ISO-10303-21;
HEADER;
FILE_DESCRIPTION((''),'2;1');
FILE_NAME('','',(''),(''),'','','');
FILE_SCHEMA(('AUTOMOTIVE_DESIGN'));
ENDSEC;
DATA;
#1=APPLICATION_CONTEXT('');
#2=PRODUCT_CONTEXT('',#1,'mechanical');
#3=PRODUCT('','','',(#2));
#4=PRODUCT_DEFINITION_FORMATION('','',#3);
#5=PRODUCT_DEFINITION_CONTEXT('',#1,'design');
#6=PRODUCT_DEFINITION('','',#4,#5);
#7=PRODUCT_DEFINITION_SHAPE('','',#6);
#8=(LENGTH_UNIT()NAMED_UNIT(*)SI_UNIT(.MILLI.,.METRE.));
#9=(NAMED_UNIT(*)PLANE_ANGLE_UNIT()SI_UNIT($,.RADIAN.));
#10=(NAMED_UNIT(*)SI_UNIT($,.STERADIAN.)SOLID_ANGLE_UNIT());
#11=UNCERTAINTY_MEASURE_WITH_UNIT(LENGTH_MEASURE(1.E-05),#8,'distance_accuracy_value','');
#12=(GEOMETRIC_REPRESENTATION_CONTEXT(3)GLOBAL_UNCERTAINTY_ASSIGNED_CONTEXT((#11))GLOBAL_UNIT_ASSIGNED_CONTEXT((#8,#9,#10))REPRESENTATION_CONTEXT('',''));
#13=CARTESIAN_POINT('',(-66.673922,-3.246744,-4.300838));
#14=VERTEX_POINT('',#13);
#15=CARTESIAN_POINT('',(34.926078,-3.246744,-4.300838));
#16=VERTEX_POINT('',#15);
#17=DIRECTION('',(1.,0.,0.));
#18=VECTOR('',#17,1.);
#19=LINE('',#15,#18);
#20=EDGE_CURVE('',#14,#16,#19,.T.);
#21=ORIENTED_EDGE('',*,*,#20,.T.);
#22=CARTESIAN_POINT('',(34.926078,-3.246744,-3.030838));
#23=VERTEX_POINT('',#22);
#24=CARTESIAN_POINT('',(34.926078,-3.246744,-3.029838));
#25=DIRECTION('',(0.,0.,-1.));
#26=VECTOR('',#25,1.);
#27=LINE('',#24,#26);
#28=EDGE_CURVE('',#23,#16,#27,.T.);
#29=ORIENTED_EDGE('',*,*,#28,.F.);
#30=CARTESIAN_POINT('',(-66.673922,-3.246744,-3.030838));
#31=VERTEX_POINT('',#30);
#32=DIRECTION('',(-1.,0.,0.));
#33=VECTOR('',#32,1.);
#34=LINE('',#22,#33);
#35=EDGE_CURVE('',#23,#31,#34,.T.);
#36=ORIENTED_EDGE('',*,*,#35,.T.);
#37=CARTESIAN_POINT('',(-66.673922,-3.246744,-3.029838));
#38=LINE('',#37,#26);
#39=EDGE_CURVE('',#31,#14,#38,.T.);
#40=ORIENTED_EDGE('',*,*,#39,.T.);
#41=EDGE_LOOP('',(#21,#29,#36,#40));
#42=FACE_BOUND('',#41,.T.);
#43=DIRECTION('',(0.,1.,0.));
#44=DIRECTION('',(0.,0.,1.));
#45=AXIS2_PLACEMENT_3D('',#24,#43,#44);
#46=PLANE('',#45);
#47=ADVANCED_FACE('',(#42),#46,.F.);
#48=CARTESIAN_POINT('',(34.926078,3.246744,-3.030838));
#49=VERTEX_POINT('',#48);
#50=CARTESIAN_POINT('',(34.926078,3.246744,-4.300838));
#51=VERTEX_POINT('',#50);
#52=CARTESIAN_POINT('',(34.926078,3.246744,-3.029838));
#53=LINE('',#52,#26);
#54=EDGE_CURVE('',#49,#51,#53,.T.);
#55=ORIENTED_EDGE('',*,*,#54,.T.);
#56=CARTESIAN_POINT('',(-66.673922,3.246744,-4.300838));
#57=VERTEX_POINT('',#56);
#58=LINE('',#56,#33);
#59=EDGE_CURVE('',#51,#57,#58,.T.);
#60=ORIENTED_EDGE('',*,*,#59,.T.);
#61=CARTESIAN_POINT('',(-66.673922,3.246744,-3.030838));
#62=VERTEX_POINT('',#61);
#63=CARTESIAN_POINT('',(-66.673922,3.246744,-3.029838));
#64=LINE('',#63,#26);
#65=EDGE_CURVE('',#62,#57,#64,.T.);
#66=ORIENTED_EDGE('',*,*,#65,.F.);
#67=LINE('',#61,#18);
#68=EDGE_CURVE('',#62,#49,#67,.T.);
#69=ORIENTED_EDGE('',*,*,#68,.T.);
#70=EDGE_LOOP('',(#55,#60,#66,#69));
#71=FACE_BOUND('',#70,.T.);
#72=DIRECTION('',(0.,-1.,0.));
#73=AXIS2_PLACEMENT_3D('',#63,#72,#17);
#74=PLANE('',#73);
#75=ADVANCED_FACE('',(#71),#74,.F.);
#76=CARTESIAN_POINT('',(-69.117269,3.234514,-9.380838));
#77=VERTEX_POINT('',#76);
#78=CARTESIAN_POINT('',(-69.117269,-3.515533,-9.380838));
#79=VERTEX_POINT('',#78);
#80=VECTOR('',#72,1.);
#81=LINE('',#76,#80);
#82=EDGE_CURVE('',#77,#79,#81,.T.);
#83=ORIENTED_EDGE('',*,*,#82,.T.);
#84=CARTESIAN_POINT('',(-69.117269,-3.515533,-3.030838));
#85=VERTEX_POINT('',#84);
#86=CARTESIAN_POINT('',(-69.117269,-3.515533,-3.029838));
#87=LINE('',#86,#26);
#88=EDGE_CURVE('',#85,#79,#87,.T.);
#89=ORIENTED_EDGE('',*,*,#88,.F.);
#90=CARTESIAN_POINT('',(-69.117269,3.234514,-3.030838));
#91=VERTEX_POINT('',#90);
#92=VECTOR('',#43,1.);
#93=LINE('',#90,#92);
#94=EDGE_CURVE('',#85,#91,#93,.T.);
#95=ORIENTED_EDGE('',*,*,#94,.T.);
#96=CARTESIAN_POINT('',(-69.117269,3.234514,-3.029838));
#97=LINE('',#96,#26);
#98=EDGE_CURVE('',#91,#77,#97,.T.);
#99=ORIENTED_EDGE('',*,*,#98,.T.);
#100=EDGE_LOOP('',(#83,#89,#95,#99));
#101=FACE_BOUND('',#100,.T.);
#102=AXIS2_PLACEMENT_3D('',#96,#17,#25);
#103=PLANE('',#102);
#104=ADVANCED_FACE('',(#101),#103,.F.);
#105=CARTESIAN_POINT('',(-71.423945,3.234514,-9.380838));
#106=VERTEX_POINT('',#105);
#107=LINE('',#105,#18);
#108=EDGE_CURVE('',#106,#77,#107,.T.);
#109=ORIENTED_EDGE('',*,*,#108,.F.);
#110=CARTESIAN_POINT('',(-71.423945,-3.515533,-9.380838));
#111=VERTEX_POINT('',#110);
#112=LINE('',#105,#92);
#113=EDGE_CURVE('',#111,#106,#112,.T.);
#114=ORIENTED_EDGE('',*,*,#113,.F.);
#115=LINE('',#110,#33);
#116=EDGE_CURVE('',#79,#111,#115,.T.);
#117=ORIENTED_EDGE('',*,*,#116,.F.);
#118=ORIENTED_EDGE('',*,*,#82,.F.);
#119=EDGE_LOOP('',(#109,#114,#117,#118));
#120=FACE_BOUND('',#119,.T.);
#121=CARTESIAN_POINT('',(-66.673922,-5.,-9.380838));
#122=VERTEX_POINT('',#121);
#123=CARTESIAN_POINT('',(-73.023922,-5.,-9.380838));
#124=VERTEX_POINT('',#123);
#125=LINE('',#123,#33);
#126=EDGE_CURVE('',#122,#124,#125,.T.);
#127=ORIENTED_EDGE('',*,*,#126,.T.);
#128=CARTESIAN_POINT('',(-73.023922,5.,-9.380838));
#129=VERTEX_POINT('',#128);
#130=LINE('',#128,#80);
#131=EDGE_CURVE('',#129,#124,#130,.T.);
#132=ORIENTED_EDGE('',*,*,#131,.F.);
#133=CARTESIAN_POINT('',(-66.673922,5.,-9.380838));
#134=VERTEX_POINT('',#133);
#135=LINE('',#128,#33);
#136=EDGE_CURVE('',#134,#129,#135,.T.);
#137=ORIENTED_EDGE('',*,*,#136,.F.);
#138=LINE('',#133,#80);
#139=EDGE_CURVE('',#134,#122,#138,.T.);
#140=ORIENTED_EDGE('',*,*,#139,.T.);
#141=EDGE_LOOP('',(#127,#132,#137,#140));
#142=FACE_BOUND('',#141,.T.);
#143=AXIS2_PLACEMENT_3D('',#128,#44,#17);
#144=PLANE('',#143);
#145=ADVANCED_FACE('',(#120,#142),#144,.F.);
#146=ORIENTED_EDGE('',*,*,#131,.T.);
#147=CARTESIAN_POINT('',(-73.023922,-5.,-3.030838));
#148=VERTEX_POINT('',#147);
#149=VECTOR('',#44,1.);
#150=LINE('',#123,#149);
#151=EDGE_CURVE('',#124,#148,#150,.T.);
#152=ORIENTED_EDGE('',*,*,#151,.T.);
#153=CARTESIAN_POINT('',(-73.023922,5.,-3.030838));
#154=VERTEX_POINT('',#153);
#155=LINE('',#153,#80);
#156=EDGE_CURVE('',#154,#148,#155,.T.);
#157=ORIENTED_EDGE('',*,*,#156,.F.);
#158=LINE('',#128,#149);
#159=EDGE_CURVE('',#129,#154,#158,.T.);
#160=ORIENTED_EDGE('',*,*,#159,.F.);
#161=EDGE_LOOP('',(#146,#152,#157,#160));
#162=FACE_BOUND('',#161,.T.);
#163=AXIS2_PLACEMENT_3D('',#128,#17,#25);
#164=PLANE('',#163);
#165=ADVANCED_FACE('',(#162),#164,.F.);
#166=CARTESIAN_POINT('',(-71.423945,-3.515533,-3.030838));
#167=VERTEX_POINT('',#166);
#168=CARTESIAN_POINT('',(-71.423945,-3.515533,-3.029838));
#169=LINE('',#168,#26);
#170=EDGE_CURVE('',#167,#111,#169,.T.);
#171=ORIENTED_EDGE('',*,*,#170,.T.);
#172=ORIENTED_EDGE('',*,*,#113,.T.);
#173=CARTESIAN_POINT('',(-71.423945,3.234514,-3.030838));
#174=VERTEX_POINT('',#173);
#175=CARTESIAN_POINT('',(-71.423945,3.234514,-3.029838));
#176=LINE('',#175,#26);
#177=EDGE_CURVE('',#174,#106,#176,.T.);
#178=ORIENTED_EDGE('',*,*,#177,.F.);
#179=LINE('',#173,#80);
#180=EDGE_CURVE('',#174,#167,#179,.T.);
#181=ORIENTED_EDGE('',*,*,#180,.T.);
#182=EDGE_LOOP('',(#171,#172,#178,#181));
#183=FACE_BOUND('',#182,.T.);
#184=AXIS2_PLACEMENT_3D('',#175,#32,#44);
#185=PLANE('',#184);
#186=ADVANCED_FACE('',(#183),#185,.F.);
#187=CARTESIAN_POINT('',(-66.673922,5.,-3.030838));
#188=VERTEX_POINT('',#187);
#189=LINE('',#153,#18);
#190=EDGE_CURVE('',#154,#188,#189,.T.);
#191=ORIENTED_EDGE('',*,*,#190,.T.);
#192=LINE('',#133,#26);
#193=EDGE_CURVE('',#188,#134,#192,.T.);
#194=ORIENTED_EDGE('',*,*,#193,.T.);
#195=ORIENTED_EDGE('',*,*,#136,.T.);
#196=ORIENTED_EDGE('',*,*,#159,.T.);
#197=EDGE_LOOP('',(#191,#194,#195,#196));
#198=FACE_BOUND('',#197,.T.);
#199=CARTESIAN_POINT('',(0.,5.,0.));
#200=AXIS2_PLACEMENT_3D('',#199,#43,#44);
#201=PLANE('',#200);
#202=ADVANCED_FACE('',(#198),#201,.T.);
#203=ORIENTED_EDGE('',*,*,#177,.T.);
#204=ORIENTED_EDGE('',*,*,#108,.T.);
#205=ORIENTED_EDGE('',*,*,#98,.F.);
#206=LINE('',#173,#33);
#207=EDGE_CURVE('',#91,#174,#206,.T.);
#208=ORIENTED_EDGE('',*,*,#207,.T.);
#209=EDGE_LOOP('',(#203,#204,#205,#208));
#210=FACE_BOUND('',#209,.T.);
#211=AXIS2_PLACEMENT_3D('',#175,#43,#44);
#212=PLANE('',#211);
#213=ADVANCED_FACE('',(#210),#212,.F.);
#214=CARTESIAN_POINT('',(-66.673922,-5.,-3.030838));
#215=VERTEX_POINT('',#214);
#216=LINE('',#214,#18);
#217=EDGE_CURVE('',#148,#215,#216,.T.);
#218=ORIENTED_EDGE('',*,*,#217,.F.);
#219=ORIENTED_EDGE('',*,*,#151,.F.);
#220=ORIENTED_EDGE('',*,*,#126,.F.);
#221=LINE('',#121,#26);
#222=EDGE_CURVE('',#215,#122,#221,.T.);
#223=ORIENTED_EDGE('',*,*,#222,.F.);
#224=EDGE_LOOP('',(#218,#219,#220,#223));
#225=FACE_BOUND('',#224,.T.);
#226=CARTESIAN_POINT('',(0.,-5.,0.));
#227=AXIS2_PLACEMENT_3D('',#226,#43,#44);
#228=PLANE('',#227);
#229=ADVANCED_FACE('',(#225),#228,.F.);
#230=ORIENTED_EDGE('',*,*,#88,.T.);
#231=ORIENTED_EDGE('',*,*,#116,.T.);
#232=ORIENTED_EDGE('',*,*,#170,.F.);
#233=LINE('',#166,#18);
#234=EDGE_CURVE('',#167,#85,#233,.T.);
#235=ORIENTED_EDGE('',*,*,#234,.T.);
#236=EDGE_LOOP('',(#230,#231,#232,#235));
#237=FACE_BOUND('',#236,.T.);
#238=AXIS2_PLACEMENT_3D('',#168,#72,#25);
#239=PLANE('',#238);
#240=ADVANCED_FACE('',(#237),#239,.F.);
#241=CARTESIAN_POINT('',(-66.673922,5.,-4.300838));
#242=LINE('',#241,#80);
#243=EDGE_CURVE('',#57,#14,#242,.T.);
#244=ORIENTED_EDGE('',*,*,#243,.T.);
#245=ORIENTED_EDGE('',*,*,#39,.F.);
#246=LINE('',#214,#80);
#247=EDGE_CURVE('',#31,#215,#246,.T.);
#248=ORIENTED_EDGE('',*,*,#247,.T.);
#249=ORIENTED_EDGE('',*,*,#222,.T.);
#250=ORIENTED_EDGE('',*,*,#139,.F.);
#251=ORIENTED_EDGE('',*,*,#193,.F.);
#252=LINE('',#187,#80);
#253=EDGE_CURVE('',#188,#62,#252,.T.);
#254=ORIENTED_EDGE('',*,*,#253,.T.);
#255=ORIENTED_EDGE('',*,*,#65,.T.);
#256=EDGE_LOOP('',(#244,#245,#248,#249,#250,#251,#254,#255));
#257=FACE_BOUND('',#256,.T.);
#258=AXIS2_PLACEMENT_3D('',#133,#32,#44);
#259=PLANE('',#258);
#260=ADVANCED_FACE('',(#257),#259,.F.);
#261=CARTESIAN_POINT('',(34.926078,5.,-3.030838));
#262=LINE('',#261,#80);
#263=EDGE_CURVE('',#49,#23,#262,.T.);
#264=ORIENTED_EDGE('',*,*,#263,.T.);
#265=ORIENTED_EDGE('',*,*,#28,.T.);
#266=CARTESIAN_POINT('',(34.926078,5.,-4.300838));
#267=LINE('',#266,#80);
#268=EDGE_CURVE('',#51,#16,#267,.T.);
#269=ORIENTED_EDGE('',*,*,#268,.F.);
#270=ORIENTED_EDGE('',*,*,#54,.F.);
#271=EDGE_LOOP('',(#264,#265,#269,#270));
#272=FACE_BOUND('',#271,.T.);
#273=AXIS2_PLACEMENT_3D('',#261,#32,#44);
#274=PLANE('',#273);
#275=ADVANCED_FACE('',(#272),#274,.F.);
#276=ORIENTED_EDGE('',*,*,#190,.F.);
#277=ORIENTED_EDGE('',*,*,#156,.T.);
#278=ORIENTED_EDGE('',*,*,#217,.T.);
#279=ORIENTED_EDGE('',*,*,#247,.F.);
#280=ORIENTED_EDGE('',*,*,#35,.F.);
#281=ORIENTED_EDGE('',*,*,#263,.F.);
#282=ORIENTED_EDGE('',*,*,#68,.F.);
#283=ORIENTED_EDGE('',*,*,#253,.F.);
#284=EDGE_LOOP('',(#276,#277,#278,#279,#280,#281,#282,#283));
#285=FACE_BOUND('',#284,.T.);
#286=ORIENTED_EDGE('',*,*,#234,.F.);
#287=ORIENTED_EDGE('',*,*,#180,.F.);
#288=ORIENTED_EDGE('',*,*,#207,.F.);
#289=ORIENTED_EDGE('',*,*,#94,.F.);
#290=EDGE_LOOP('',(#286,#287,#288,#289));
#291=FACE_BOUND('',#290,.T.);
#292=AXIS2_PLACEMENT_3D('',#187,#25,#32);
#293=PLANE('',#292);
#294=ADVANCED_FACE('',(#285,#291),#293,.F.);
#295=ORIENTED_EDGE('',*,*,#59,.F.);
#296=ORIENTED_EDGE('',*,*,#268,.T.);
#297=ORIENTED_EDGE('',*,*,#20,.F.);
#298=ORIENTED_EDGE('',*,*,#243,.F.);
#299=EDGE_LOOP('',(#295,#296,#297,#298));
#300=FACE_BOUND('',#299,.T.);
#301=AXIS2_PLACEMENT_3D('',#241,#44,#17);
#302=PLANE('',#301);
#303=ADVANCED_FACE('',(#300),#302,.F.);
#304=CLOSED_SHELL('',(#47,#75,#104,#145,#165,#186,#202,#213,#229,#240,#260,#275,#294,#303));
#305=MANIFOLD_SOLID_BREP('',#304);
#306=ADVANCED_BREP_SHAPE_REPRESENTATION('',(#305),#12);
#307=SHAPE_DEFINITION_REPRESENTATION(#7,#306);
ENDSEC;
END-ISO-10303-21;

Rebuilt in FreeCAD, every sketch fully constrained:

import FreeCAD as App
import Part
import Sketcher
Q = App.Units.Quantity

doc = App.newDocument("Part")
body = doc.addObject("PartDesign::Body", "Body")

# Sketch on XZ plane
sketch1 = body.newObject("Sketcher::SketchObject", "Sketch")
sketch1.AttachmentSupport = (doc.getObject("XZ_Plane"), [""])
sketch1.MapMode = "FlatFace"
sketch1.addGeometry([
    Part.LineSegment(App.Vector(-66.673922, -9.380838, 0), App.Vector(-73.023922, -9.380838, 0)),  # 0
    Part.LineSegment(App.Vector(-73.023922, -9.380838, 0), App.Vector(-73.023922, -3.030838, 0)),  # 1
    Part.LineSegment(App.Vector(-73.023922, -3.030838, 0), App.Vector(34.926078, -3.030838, 0)),  # 2
    Part.LineSegment(App.Vector(34.926078, -3.030838, 0), App.Vector(34.926078, -4.300838, 0)),  # 3
    Part.LineSegment(App.Vector(34.926078, -4.300838, 0), App.Vector(-66.673922, -4.300838, 0)),  # 4
    Part.LineSegment(App.Vector(-66.673922, -4.300838, 0), App.Vector(-66.673922, -9.380838, 0)),  # 5
], False)
sketch1.addConstraint([
    Sketcher.Constraint("Coincident", 0, 2, 1, 1),
    Sketcher.Constraint("Coincident", 1, 2, 2, 1),
    Sketcher.Constraint("Coincident", 2, 2, 3, 1),
    Sketcher.Constraint("Coincident", 3, 2, 4, 1),
    Sketcher.Constraint("Coincident", 4, 2, 5, 1),
    Sketcher.Constraint("Coincident", 5, 2, 0, 1),
    Sketcher.Constraint("Horizontal", 0),
    Sketcher.Constraint("Vertical", 1),
    Sketcher.Constraint("Horizontal", 2),
    Sketcher.Constraint("Vertical", 3),
    Sketcher.Constraint("Horizontal", 4),
    Sketcher.Constraint("Vertical", 5),
    Sketcher.Constraint("Equal", 0, 1),
    Sketcher.Constraint("DistanceX", 4, 2, 4, 1, Q("4 in")),
    Sketcher.Constraint("DistanceY", 5, 2, 5, 1, Q("0.2 in")),
    Sketcher.Constraint("DistanceX", 0, 2, 0, 1, Q("0.25 in")),
    Sketcher.Constraint("DistanceX", 0, 2, -1, 1, Q("73.023922 mm")),
    Sketcher.Constraint("DistanceY", 0, 2, -1, 1, Q("9.380838 mm")),
])
pad1 = body.newObject("PartDesign::Pad", "Pad")
pad1.Profile = sketch1
pad1.Length = 10
pad1.Midplane = True

# Sketch on XY plane
sketch2 = body.newObject("Sketcher::SketchObject", "Sketch001")
sketch2.AttachmentSupport = (doc.getObject("XY_Plane"), [""])
sketch2.MapMode = "FlatFace"
sketch2.AttachmentOffset = App.Placement(App.Vector(0, 0, -9.380838), App.Rotation())
sketch2.addGeometry([
    Part.LineSegment(App.Vector(-69.117269, 3.234514, 0), App.Vector(-69.117269, -3.515533, 0)),
    Part.LineSegment(App.Vector(-69.117269, -3.515533, 0), App.Vector(-71.423945, -3.515533, 0)),
    Part.LineSegment(App.Vector(-71.423945, -3.515533, 0), App.Vector(-71.423945, 3.234514, 0)),
    Part.LineSegment(App.Vector(-71.423945, 3.234514, 0), App.Vector(-69.117269, 3.234514, 0)),
], False)
sketch2.addConstraint([
    Sketcher.Constraint("Coincident", 0, 2, 1, 1),
    Sketcher.Constraint("Coincident", 1, 2, 2, 1),
    Sketcher.Constraint("Coincident", 2, 2, 3, 1),
    Sketcher.Constraint("Coincident", 3, 2, 0, 1),
    Sketcher.Constraint("Vertical", 0),
    Sketcher.Constraint("Horizontal", 1),
    Sketcher.Constraint("Vertical", 2),
    Sketcher.Constraint("Horizontal", 3),
    Sketcher.Constraint("DistanceX", 1, 2, 1, 1, Q("2.306676 mm")),
    Sketcher.Constraint("DistanceY", 0, 2, 0, 1, Q("6.750047 mm")),
    Sketcher.Constraint("DistanceX", 0, 2, -1, 1, Q("69.117269 mm")),
    Sketcher.Constraint("DistanceY", 0, 2, -1, 1, Q("3.515533 mm")),
])
pocket1 = body.newObject("PartDesign::Pocket", "Pocket")
pocket1.Profile = sketch2
pocket1.Type = "UpToFirst"
pocket1.Reversed = True

# Sketch on XY plane
sketch3 = body.newObject("Sketcher::SketchObject", "Sketch002")
sketch3.AttachmentSupport = (doc.getObject("XY_Plane"), [""])
sketch3.MapMode = "FlatFace"
sketch3.AttachmentOffset = App.Placement(App.Vector(0, 0, -4.300838), App.Rotation())
sketch3.addGeometry([
    Part.LineSegment(App.Vector(34.926078, 5, 0), App.Vector(34.926078, 3.246744, 0)),
    Part.LineSegment(App.Vector(34.926078, 3.246744, 0), App.Vector(-66.673922, 3.246744, 0)),
    Part.LineSegment(App.Vector(-66.673922, 3.246744, 0), App.Vector(-66.673922, 5, 0)),
    Part.LineSegment(App.Vector(-66.673922, 5, 0), App.Vector(34.926078, 5, 0)),
], False)
sketch3.addConstraint([
    Sketcher.Constraint("Coincident", 0, 2, 1, 1),
    Sketcher.Constraint("Coincident", 1, 2, 2, 1),
    Sketcher.Constraint("Coincident", 2, 2, 3, 1),
    Sketcher.Constraint("Coincident", 3, 2, 0, 1),
    Sketcher.Constraint("Vertical", 0),
    Sketcher.Constraint("Horizontal", 1),
    Sketcher.Constraint("Vertical", 2),
    Sketcher.Constraint("Horizontal", 3),
    Sketcher.Constraint("DistanceX", 1, 2, 1, 1, Q("4 in")),
    Sketcher.Constraint("DistanceY", -1, 1, 2, 2, Q("5 mm")),
    Sketcher.Constraint("DistanceY", 0, 2, 0, 1, Q("1.753256 mm")),
    Sketcher.Constraint("DistanceX", -1, 1, 0, 2, Q("34.926078 mm")),
])
pocket2 = body.newObject("PartDesign::Pocket", "Pocket001")
pocket2.Profile = sketch3
pocket2.Type = "UpToFirst"
pocket2.Reversed = True

# Sketch on XY plane
sketch4 = body.newObject("Sketcher::SketchObject", "Sketch003")
sketch4.AttachmentSupport = (doc.getObject("XY_Plane"), [""])
sketch4.MapMode = "FlatFace"
sketch4.AttachmentOffset = App.Placement(App.Vector(0, 0, -4.300838), App.Rotation())
sketch4.addGeometry([
    Part.LineSegment(App.Vector(34.926078, -3.246744, 0), App.Vector(34.926078, -5, 0)),
    Part.LineSegment(App.Vector(34.926078, -5, 0), App.Vector(-66.673922, -5, 0)),
    Part.LineSegment(App.Vector(-66.673922, -5, 0), App.Vector(-66.673922, -3.246744, 0)),
    Part.LineSegment(App.Vector(-66.673922, -3.246744, 0), App.Vector(34.926078, -3.246744, 0)),
], False)
sketch4.addConstraint([
    Sketcher.Constraint("Coincident", 0, 2, 1, 1),
    Sketcher.Constraint("Coincident", 1, 2, 2, 1),
    Sketcher.Constraint("Coincident", 2, 2, 3, 1),
    Sketcher.Constraint("Coincident", 3, 2, 0, 1),
    Sketcher.Constraint("Vertical", 0),
    Sketcher.Constraint("Horizontal", 1),
    Sketcher.Constraint("Vertical", 2),
    Sketcher.Constraint("Horizontal", 3),
    Sketcher.Constraint("DistanceX", 1, 2, 1, 1, Q("4 in")),
    Sketcher.Constraint("DistanceY", 0, 2, -1, 1, Q("5 mm")),
    Sketcher.Constraint("DistanceY", 0, 2, 0, 1, Q("1.753256 mm")),
    Sketcher.Constraint("DistanceX", -1, 1, 0, 2, Q("34.926078 mm")),
])
pocket3 = body.newObject("PartDesign::Pocket", "Pocket002")
pocket3.Profile = sketch4
pocket3.Type = "UpToFirst"
pocket3.Reversed = True

doc.recompute()
